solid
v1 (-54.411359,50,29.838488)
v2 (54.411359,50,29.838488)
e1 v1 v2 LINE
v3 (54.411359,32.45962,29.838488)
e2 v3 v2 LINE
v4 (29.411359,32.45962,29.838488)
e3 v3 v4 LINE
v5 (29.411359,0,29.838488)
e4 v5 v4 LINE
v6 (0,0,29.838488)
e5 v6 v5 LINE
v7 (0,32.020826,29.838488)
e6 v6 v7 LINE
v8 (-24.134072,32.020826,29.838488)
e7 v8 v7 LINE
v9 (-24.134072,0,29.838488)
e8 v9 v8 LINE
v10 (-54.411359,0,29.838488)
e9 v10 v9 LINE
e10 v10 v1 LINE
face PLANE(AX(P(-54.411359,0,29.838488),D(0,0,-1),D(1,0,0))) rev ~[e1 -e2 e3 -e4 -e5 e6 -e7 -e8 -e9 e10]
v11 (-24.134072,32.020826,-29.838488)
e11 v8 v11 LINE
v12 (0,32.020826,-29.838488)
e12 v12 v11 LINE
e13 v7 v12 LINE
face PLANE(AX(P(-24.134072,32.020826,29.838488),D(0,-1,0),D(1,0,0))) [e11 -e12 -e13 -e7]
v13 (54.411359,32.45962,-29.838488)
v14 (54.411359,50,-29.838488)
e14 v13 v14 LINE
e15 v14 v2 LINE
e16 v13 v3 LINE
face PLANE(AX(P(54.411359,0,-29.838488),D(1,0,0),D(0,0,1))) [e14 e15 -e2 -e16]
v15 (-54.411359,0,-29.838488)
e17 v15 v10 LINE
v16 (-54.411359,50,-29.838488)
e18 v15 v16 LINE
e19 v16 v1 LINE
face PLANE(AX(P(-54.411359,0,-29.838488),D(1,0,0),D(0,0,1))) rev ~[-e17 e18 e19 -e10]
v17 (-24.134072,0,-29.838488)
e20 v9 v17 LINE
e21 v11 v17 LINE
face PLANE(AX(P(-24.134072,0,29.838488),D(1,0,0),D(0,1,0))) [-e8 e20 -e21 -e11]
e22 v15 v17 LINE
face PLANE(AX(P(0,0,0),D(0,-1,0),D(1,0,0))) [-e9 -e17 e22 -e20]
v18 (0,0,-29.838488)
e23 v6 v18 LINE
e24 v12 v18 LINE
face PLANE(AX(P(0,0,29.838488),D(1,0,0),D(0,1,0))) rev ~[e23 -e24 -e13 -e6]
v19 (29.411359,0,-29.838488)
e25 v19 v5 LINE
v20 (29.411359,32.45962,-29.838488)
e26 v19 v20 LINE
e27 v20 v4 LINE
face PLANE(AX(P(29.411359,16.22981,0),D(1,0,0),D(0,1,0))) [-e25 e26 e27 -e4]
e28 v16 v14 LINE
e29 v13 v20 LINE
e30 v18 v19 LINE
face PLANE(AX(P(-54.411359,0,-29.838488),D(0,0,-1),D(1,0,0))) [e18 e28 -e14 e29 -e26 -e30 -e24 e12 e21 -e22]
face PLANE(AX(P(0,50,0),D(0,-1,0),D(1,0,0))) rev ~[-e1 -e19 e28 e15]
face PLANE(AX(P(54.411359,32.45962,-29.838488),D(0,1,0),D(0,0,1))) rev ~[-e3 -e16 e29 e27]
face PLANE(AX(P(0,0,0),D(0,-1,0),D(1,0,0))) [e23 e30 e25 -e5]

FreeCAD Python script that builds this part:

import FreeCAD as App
import Part
import Sketcher

V = App.Vector
Q = App.Units.Quantity

doc = App.newDocument("Part")
body = doc.addObject("PartDesign::Body", "Body")

sketch1 = doc.addObject("Sketcher::SketchObject", "Sketch")
body.addObject(sketch1)
sketch1.AttachmentSupport = (doc.XZ_Plane, [""])
sketch1.MapMode = "FlatFace"
sketch1.addGeometry([
    Part.LineSegment(V(-54, 30, 0), V(-54, -30, 0)),
    Part.LineSegment(V(-54, -30, 0), V(54, -30, 0)),
    Part.LineSegment(V(54, -30, 0), V(54, 30, 0)),
    Part.LineSegment(V(54, 30, 0), V(-54, 30, 0)),
], False)
sketch1.addConstraint([
    Sketcher.Constraint("Coincident", 0, 2, 1, 1),
    Sketcher.Constraint("Coincident", 1, 2, 2, 1),
    Sketcher.Constraint("Coincident", 2, 2, 3, 1),
    Sketcher.Constraint("Coincident", 3, 2, 0, 1),
    Sketcher.Constraint("Vertical", 0),
    Sketcher.Constraint("Horizontal", 1),
    Sketcher.Constraint("Vertical", 2),
    Sketcher.Constraint("Horizontal", 3),
    Sketcher.Constraint("Symmetric", 0, 2, 2, 2, -1, 1),
    Sketcher.Constraint("DistanceX", 1, 1, 1, 2, Q("108.822718 mm")),
    Sketcher.Constraint("DistanceY", 0, 2, 0, 1, Q("59.676976 mm")),
])
pad1 = doc.addObject("PartDesign::Pad", "Pad")
body.addObject(pad1)
pad1.Profile = sketch1
pad1.Length = 50
pad1.Reversed = True

sketch2 = doc.addObject("Sketcher::SketchObject", "Sketch001")
body.addObject(sketch2)
sketch2.AttachmentSupport = (doc.YZ_Plane, [""])
sketch2.MapMode = "FlatFace"
sketch2.AttachmentOffset = App.Placement(V(0, 0, 54.411359), App.Rotation())
sketch2.addGeometry([
    Part.LineSegment(V(0, 30, 0), V(0, -30, 0)),
    Part.LineSegment(V(0, -30, 0), V(32, -30, 0)),
    Part.LineSegment(V(32, -30, 0), V(32, 30, 0)),
    Part.LineSegment(V(32, 30, 0), V(0, 30, 0)),
], False)
sketch2.addConstraint([
    Sketcher.Constraint("Coincident", 0, 2, 1, 1),
    Sketcher.Constraint("Coincident", 1, 2, 2, 1),
    Sketcher.Constraint("Coincident", 2, 2, 3, 1),
    Sketcher.Constraint("Coincident", 3, 2, 0, 1),
    Sketcher.Constraint("Vertical", 0),
    Sketcher.Constraint("Horizontal", 1),
    Sketcher.Constraint("Vertical", 2),
    Sketcher.Constraint("Horizontal", 3),
    Sketcher.Constraint("Symmetric", 0, 2, 3, 2, -1, 1),
    Sketcher.Constraint("DistanceX", 1, 1, 1, 2, Q("32.45962 mm")),
    Sketcher.Constraint("DistanceY", 0, 2, 0, 1, Q("59.676976 mm")),
])
pocket1 = doc.addObject("PartDesign::Pocket", "Pocket")
body.addObject(pocket1)
pocket1.Profile = sketch2
pocket1.Length = 25

sketch3 = doc.addObject("Sketcher::SketchObject", "Sketch002")
body.addObject(sketch3)
sketch3.AttachmentSupport = (doc.XY_Plane, [""])
sketch3.MapMode = "FlatFace"
sketch3.AttachmentOffset = App.Placement(V(0, 0, 29.838488), App.Rotation())
sketch3.addGeometry([
    Part.LineSegment(V(-24, 32, 0), V(-24, 0, 0)),
    Part.LineSegment(V(-24, 0, 0), V(0, 0, 0)),
    Part.LineSegment(V(0, 0, 0), V(0, 32, 0)),
    Part.LineSegment(V(0, 32, 0), V(-24, 32, 0)),
], False)
sketch3.addConstraint([
    Sketcher.Constraint("Coincident", 0, 2, 1, 1),
    Sketcher.Constraint("Coincident", 1, 2, 2, 1),
    Sketcher.Constraint("Coincident", 2, 2, 3, 1),
    Sketcher.Constraint("Coincident", 3, 2, 0, 1),
    Sketcher.Constraint("Vertical", 0),
    Sketcher.Constraint("Horizontal", 1),
    Sketcher.Constraint("Vertical", 2),
    Sketcher.Constraint("Horizontal", 3),
    Sketcher.Constraint("Coincident", 1, 2, -1, 1),
    Sketcher.Constraint("DistanceX", 1, 1, 1, 2, Q("24.134072 mm")),
    Sketcher.Constraint("DistanceY", 0, 2, 0, 1, Q("32.020826 mm")),
])
pocket2 = doc.addObject("PartDesign::Pocket", "Pocket001")
body.addObject(pocket2)
pocket2.Profile = sketch3
pocket2.Length = 25
pocket2.Reversed = True

sketch4 = doc.addObject("Sketcher::SketchObject", "Sketch003")
body.addObject(sketch4)
sketch4.AttachmentSupport = (doc.XY_Plane, [""])
sketch4.MapMode = "FlatFace"
sketch4.AttachmentOffset = App.Placement(V(0, 0, 29.838488), App.Rotation())
sketch4.addGeometry([
    Part.LineSegment(V(-24, 32, 0), V(-24, 0, 0)),
    Part.LineSegment(V(-24, 0, 0), V(0, 0, 0)),
    Part.LineSegment(V(0, 0, 0), V(0, 32, 0)),
    Part.LineSegment(V(0, 32, 0), V(-24, 32, 0)),
], False)
sketch4.addConstraint([
    Sketcher.Constraint("Coincident", 0, 2, 1, 1),
    Sketcher.Constraint("Coincident", 1, 2, 2, 1),
    Sketcher.Constraint("Coincident", 2, 2, 3, 1),
    Sketcher.Constraint("Coincident", 3, 2, 0, 1),
    Sketcher.Constraint("Vertical", 0),
    Sketcher.Constraint("Horizontal", 1),
    Sketcher.Constraint("Vertical", 2),
    Sketcher.Constraint("Horizontal", 3),
    Sketcher.Constraint("Coincident", 1, 2, -1, 1),
    Sketcher.Constraint("DistanceX", 1, 1, 1, 2, Q("24.134072 mm")),
    Sketcher.Constraint("DistanceY", 0, 2, 0, 1, Q("32.020826 mm")),
])
pocket3 = doc.addObject("PartDesign::Pocket", "Pocket002")
body.addObject(pocket3)
pocket3.Profile = sketch4
pocket3.Length = 60

doc.recompute()
